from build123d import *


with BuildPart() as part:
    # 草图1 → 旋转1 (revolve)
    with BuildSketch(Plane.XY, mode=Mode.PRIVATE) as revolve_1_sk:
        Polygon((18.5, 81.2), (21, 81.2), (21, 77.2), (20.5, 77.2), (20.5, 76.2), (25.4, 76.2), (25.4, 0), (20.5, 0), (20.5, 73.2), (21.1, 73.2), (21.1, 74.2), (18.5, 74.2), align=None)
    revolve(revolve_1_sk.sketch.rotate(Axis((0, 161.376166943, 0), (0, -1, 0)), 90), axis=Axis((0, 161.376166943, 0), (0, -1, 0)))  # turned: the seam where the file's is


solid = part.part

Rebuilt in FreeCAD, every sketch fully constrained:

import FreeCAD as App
import Part
import Sketcher
Q = App.Units.Quantity

doc = App.newDocument("Part")
params = doc.addObject("Spreadsheet::Sheet", "Params")
for row, (alias, value) in enumerate([
    ("sketch1_height", "7 mm"),
    ("sketch1_height2", "1 mm"),
    ("sketch1_height3", "4 mm"),
    ("sketch1_width", "2.5 mm"),
    ("sketch1_width2", "2.6 mm"),
    ("revolution_angle", "360 deg"),
], start=1):
    params.set(f"A{row}", alias)
    params.set(f"B{row}", "=" + value)
    params.setAlias(f"B{row}", alias)

body = doc.addObject("PartDesign::Body", "Body")

# Sketch on XY plane
sketch1 = body.newObject("Sketcher::SketchObject", "Sketch")
sketch1.AttachmentSupport = (doc.getObject("XY_Plane"), [""])
sketch1.MapMode = "FlatFace"
sketch1.addGeometry(Part.LineSegment(App.Vector(21, 81.2, 0), App.Vector(18.5, 81.2, 0)), False)
sketch1.addGeometry(Part.LineSegment(App.Vector(18.5, 81.2, 0), App.Vector(18.5, 74.2, 0)), False)
sketch1.addGeometry(Part.LineSegment(App.Vector(18.5, 74.2, 0), App.Vector(21.1, 74.2, 0)), False)
sketch1.addGeometry(Part.LineSegment(App.Vector(21.1, 74.2, 0), App.Vector(21.1, 73.2, 0)), False)
sketch1.addGeometry(Part.LineSegment(App.Vector(21.1, 73.2, 0), App.Vector(20.5, 73.2, 0)), False)
sketch1.addGeometry(Part.LineSegment(App.Vector(20.5, 73.2, 0), App.Vector(20.5, 0, 0)), False)
sketch1.addGeometry(Part.LineSegment(App.Vector(20.5, 0, 0), App.Vector(25.4, 0, 0)), False)
sketch1.addGeometry(Part.LineSegment(App.Vector(25.4, 0, 0), App.Vector(25.4, 76.2, 0)), False)
sketch1.addGeometry(Part.LineSegment(App.Vector(25.4, 76.2, 0), App.Vector(20.5, 76.2, 0)), False)
sketch1.addGeometry(Part.LineSegment(App.Vector(20.5, 76.2, 0), App.Vector(20.5, 77.2, 0)), False)
sketch1.addGeometry(Part.LineSegment(App.Vector(20.5, 77.2, 0), App.Vector(21, 77.2, 0)), False)
sketch1.addGeometry(Part.LineSegment(App.Vector(21, 77.2, 0), App.Vector(21, 81.2, 0)), False)
sketch1.addConstraint(Sketcher.Constraint("Coincident", 0, 2, 1, 1))
sketch1.addConstraint(Sketcher.Constraint("Coincident", 1, 2, 2, 1))
sketch1.addConstraint(Sketcher.Constraint("Coincident", 2, 2, 3, 1))
sketch1.addConstraint(Sketcher.Constraint("Coincident", 3, 2, 4, 1))
sketch1.addConstraint(Sketcher.Constraint("Coincident", 4, 2, 5, 1))
sketch1.addConstraint(Sketcher.Constraint("Coincident", 5, 2, 6, 1))
sketch1.addConstraint(Sketcher.Constraint("Coincident", 6, 2, 7, 1))
sketch1.addConstraint(Sketcher.Constraint("Coincident", 7, 2, 8, 1))
sketch1.addConstraint(Sketcher.Constraint("Coincident", 8, 2, 9, 1))
sketch1.addConstraint(Sketcher.Constraint("Coincident", 9, 2, 10, 1))
sketch1.addConstraint(Sketcher.Constraint("Coincident", 10, 2, 11, 1))
sketch1.addConstraint(Sketcher.Constraint("Coincident", 11, 2, 0, 1))
sketch1.addConstraint(Sketcher.Constraint("Horizontal", 0))
sketch1.addConstraint(Sketcher.Constraint("Vertical", 1))
sketch1.addConstraint(Sketcher.Constraint("Horizontal", 2))
sketch1.addConstraint(Sketcher.Constraint("Vertical", 3))
sketch1.addConstraint(Sketcher.Constraint("Horizontal", 4))
sketch1.addConstraint(Sketcher.Constraint("Vertical", 5))
sketch1.addConstraint(Sketcher.Constraint("Horizontal", 6))
sketch1.addConstraint(Sketcher.Constraint("Vertical", 7))
sketch1.addConstraint(Sketcher.Constraint("Horizontal", 8))
sketch1.addConstraint(Sketcher.Constraint("Vertical", 9))
sketch1.addConstraint(Sketcher.Constraint("Horizontal", 10))
sketch1.addConstraint(Sketcher.Constraint("Vertical", 11))
sketch1.addConstraint(Sketcher.Constraint("PointOnObject", 5, 2, -1))
sketch1.addConstraint(Sketcher.Constraint("Vertical", 5, 2, 8, 2))
sketch1.addConstraint(Sketcher.Constraint("Equal", 3, 9))
sketch1.addConstraint(Sketcher.Constraint("DistanceY", 1, 2, 1, 1, Q("7 mm")))
sketch1.addConstraint(Sketcher.Constraint("DistanceY", 3, 2, 3, 1, Q("1 mm")))
sketch1.addConstraint(Sketcher.Constraint("DistanceY", 11, 1, 11, 2, Q("4 mm")))
sketch1.addConstraint(Sketcher.Constraint("DistanceX", 0, 2, 0, 1, Q("2.5 mm")))
sketch1.addConstraint(Sketcher.Constraint("DistanceX", 2, 1, 2, 2, Q("2.6 mm")))
sketch1.addConstraint(Sketcher.Constraint("DistanceX", 4, 2, 4, 1, Q("0.6 mm")))
sketch1.addConstraint(Sketcher.Constraint("DistanceX", 6, 1, 6, 2, Q("4.9 mm")))
sketch1.addConstraint(Sketcher.Constraint("DistanceY", 5, 2, 5, 1, Q("73.2 mm")))
sketch1.addConstraint(Sketcher.Constraint("DistanceX", -1, 1, 10, 2, Q("21 mm")))
sketch1.setExpression("Constraints[27]", "Params.sketch1_height")
sketch1.setExpression("Constraints[28]", "Params.sketch1_height2")
sketch1.setExpression("Constraints[29]", "Params.sketch1_height3")
sketch1.setExpression("Constraints[30]", "Params.sketch1_width")
sketch1.setExpression("Constraints[31]", "Params.sketch1_width2")
revolution = body.newObject("PartDesign::Revolution", "Revolution")
revolution.Profile = sketch1
revolution.ReferenceAxis = (sketch1, ["V_Axis"])
revolution.setExpression("Angle", "Params.revolution_angle")

doc.recompute()
